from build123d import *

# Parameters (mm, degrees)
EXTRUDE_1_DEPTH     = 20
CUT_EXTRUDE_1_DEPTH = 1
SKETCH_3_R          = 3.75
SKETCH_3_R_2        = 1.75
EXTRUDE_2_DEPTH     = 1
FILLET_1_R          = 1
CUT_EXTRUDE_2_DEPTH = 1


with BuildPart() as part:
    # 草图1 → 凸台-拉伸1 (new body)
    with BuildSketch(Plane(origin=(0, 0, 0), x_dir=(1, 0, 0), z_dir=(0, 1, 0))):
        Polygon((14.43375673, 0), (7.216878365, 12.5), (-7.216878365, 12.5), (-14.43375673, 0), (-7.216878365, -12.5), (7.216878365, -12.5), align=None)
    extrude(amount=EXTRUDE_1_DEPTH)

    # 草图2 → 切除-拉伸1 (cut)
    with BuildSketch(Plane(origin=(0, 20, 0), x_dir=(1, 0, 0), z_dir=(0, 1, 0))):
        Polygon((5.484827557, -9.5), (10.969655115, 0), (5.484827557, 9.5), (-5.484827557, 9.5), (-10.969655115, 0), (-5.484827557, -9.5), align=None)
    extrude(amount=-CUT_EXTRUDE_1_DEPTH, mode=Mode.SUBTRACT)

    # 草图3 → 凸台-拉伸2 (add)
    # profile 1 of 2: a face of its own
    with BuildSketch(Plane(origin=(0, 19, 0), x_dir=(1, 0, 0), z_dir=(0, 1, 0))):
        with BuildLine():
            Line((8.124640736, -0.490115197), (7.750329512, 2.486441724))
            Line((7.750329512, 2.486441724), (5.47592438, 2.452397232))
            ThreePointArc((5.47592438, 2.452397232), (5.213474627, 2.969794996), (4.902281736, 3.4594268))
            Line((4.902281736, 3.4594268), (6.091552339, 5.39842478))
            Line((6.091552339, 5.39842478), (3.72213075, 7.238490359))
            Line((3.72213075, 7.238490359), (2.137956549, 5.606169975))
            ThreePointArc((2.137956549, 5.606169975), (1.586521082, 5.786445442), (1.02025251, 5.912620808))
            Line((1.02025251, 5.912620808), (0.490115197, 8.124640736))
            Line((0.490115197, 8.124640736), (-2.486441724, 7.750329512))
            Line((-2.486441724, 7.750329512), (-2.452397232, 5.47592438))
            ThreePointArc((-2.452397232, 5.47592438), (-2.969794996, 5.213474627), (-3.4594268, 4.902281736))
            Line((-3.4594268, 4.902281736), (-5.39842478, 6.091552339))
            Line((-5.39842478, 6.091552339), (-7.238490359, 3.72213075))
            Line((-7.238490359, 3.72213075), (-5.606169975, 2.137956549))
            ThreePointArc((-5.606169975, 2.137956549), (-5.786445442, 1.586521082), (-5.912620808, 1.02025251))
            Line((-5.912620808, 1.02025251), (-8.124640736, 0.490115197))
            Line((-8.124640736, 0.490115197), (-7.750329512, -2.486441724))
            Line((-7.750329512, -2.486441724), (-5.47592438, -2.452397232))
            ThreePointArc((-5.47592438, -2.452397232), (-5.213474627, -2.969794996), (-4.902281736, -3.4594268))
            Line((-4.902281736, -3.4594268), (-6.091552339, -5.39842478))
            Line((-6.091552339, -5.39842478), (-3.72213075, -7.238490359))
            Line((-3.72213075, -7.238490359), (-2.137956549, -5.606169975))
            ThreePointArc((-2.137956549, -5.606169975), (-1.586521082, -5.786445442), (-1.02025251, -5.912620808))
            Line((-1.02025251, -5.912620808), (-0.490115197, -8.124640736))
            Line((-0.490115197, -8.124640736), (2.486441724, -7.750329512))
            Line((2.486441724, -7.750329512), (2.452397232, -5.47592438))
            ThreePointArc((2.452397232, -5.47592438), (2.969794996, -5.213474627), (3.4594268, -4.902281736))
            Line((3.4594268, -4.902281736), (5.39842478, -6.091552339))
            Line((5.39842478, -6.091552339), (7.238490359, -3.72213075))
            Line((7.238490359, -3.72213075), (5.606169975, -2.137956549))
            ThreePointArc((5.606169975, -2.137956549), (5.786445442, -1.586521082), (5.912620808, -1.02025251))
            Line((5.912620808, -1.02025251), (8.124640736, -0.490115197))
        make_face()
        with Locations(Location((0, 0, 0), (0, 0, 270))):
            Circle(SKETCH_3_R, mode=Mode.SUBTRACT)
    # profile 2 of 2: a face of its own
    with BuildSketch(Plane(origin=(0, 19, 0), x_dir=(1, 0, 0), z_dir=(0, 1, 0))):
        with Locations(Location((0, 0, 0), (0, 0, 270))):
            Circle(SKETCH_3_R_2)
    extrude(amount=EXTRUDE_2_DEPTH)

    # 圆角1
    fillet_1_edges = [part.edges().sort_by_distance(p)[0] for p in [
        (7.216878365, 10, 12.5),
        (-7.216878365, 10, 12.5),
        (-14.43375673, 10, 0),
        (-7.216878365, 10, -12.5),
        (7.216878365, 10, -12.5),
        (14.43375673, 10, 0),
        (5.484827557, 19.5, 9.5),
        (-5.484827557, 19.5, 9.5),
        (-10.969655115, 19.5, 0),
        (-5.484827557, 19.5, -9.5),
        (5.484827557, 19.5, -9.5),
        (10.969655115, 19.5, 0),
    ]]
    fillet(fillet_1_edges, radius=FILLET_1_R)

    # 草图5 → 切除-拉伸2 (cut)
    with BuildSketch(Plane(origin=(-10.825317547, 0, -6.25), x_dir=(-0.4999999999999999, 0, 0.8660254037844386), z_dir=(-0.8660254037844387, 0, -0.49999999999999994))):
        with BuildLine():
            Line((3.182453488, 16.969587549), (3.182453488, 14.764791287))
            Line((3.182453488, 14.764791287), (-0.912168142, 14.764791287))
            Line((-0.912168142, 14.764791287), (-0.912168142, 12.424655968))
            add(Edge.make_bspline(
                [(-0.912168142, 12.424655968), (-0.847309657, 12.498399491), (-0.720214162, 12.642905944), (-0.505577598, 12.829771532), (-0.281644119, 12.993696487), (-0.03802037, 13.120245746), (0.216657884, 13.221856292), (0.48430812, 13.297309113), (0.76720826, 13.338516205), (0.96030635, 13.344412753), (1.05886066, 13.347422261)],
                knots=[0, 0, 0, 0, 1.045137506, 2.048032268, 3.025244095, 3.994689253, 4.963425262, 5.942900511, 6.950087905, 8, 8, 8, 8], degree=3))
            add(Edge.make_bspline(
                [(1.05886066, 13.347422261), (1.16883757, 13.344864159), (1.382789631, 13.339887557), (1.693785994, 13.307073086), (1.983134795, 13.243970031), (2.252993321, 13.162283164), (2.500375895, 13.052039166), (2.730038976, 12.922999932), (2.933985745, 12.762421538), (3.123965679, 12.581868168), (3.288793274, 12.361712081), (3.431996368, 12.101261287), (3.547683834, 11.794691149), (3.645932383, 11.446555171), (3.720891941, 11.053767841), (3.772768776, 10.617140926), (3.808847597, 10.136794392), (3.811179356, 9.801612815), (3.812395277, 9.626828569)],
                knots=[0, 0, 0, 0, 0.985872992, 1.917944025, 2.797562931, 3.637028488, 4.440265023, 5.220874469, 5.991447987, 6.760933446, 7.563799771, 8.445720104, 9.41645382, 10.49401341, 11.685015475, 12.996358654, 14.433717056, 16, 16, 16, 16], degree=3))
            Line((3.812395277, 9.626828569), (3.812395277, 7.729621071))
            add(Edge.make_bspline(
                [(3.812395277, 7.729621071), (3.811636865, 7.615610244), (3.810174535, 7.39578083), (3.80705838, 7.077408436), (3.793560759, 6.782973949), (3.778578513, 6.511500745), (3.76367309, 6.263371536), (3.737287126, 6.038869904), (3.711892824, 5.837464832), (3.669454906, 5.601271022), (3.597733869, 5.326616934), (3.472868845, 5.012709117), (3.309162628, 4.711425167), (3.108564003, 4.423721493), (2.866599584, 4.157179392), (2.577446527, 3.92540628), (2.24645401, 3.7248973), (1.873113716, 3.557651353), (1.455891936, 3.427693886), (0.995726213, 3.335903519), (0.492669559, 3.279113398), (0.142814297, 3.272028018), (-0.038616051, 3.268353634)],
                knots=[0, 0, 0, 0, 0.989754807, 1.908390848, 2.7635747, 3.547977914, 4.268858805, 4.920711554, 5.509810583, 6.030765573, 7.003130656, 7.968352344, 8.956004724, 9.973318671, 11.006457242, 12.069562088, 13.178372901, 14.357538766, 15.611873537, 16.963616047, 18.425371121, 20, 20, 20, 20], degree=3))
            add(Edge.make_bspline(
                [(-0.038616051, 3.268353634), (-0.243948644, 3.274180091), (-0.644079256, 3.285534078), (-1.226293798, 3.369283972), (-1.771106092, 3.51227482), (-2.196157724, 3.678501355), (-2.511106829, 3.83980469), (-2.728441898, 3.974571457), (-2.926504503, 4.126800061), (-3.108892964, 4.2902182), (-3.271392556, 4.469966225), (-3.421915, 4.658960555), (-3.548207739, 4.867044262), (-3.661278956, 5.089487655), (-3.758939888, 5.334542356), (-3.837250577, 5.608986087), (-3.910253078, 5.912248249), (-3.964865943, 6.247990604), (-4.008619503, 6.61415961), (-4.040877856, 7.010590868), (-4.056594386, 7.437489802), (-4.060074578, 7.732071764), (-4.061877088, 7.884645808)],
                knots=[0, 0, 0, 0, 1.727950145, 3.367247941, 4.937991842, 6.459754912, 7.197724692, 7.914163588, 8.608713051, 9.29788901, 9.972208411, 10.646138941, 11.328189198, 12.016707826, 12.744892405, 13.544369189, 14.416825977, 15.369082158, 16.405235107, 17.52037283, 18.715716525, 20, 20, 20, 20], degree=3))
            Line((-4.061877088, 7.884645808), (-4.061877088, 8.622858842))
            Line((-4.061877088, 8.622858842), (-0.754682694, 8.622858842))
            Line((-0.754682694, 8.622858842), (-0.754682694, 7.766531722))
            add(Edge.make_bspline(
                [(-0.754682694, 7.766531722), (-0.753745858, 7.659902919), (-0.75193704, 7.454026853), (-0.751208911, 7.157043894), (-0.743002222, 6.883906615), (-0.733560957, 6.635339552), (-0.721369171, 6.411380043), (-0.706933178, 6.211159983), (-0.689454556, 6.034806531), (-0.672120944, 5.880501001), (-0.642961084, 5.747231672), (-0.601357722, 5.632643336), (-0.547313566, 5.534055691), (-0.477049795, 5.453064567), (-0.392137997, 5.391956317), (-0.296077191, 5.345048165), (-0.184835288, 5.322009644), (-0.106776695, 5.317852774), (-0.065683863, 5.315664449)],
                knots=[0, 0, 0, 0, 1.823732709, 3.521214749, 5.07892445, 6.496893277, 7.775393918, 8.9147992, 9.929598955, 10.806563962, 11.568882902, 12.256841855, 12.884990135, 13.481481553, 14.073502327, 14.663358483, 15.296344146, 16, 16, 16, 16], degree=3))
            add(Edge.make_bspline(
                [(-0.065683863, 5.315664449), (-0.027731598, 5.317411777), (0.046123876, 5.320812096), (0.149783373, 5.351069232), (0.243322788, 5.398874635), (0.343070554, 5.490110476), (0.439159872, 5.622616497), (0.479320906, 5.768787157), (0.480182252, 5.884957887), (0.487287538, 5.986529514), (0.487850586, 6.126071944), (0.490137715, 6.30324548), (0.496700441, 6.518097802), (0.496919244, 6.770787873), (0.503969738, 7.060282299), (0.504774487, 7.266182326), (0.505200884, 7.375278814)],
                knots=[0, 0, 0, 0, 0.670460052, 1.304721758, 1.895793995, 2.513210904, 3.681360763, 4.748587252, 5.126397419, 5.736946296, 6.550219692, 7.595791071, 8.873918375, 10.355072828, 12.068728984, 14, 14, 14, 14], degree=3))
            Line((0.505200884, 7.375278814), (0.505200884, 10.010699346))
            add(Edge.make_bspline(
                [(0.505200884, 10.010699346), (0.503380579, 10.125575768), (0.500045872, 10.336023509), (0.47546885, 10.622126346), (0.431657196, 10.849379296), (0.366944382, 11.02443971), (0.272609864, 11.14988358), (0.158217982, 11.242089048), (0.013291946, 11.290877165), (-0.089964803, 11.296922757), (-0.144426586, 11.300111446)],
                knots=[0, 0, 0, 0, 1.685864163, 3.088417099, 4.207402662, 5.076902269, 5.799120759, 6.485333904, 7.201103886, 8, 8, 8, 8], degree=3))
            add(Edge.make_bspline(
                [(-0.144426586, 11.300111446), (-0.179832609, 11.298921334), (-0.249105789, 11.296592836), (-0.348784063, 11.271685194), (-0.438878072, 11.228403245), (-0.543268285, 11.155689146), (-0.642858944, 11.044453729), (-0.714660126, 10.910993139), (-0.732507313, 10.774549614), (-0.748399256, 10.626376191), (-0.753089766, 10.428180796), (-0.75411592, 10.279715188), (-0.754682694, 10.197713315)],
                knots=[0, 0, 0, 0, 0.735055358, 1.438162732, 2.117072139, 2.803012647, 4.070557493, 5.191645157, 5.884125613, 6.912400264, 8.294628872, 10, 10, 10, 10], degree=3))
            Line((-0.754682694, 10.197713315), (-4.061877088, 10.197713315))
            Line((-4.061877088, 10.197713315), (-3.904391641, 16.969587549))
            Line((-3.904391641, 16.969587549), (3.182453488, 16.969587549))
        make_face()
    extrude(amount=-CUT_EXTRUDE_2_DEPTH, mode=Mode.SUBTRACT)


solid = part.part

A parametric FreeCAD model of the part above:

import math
import FreeCAD as App
import Part
import Sketcher
from FreeCAD import Vector
Q = App.Units.Quantity


def edges_at(feature, points):
    """Names of the edges that pass closest to the given points."""
    edges = feature.Shape.Edges
    near = lambda p: min(range(len(edges)), key=lambda i: edges[i].distToShape(Part.Vertex(*p))[0])
    return sorted({f"Edge{near(p) + 1}" for p in points})


def add_polygon(sketch, points):
    """Adds a closed chain of lines whose ends are joined by coincident constraints."""
    first, n = sketch.GeometryCount, len(points)
    for a, b in zip(points, points[1:] + points[:1]):
        sketch.addGeometry(Part.LineSegment(App.Vector(*a, 0), App.Vector(*b, 0)), False)
    for i in range(n):
        sketch.addConstraint(Sketcher.Constraint("Coincident", first + i, 2, first + (i + 1) % n, 1))

doc = App.newDocument("Part")
body = doc.addObject("PartDesign::Body", "Body")

# Sketch on XZ plane
sketch1 = doc.addObject("Sketcher::SketchObject", "Sketch")
body.addObject(sketch1)
sketch1.AttachmentSupport = (doc.XZ_Plane, [""])
sketch1.MapMode = "FlatFace"
add_polygon(sketch1, [(14, 0), (7, -12), (-7, -12), (-14, 0), (-7, 12), (7, 12)])  # lines 0-5
sketch1.addConstraint([
    Sketcher.Constraint("Horizontal", 1),
    Sketcher.Constraint("Horizontal", 4),
    Sketcher.Constraint("Symmetric", 0, 2, 3, 2, -1, 1),
    Sketcher.Constraint("Symmetric", 2, 2, 5, 2, -1, 1),
    Sketcher.Constraint("PointOnObject", 2, 2, -1),
    Sketcher.Constraint("Parallel", 2, 5),
    Sketcher.Constraint("Vertical", 1, 2, 3, 2),
    Sketcher.Constraint("Angle", 0, Q("-120 deg")),
    Sketcher.Constraint("DistanceY", 1, 2, 3, 2, Q("25 mm")),
    Sketcher.Constraint("DistanceX", 1, 2, 1, 1, Q("14.433757 mm")),
])
pad1 = doc.addObject("PartDesign::Pad", "Pad")
body.addObject(pad1)
pad1.Profile = sketch1
pad1.Length = 20
pad1.Reversed = True

# Sketch on XZ plane
sketch2 = doc.addObject("Sketcher::SketchObject", "Sketch001")
body.addObject(sketch2)
sketch2.AttachmentSupport = (doc.XZ_Plane, [""])
sketch2.MapMode = "FlatFace"
sketch2.AttachmentOffset = App.Placement(Vector(0, 0, -20), App.Rotation())
add_polygon(sketch2, [(5, 10), (11, 0), (5, -10), (-5, -10), (-11, 0), (-5, 10)])  # lines 0-5
sketch2.addConstraint([
    Sketcher.Constraint("Horizontal", 2),
    Sketcher.Constraint("Horizontal", 5),
    Sketcher.Constraint("Symmetric", 0, 2, 3, 2, -1, 1),
    Sketcher.Constraint("Symmetric", 1, 2, 4, 2, -1, 1),
    Sketcher.Constraint("PointOnObject", 0, 2, -1),
    Sketcher.Constraint("Parallel", 0, 3),
    Sketcher.Constraint("Vertical", 2, 2, 4, 2),
    Sketcher.Constraint("Angle", 0, Q("-60 deg")),
    Sketcher.Constraint("DistanceY", 2, 2, 4, 2, Q("19 mm")),
    Sketcher.Constraint("DistanceX", 2, 2, 2, 1, Q("10.969655 mm")),
])
pocket1 = doc.addObject("PartDesign::Pocket", "Pocket")
body.addObject(pocket1)
pocket1.Profile = sketch2
pocket1.Length = 1
pocket1.Reversed = True

# Sketch on XZ plane
sketch3 = doc.addObject("Sketcher::SketchObject", "Sketch002")
body.addObject(sketch3)
sketch3.AttachmentSupport = (doc.XZ_Plane, [""])
sketch3.MapMode = "FlatFace"
sketch3.AttachmentOffset = App.Placement(Vector(0, 0, -19), App.Rotation())
sketch3.addGeometry([
    Part.LineSegment(Vector(8.1, 0.5, 0), Vector(7.8, -2.5, 0)),  # 0
    Part.LineSegment(Vector(7.8, -2.5, 0), Vector(5.5, -2.5, 0)),  # 1
    Part.ArcOfCircle(Part.Circle(Vector(0, 0, 0), Vector(0, 0, 1), 6), math.radians(-35.21), math.radians(-24.13)),  # 2
    Part.LineSegment(Vector(4.9, -3.5, 0), Vector(6.1, -5.4, 0)),  # 3
    Part.LineSegment(Vector(6.1, -5.4, 0), Vector(3.7, -7.2, 0)),  # 4
    Part.LineSegment(Vector(3.7, -7.2, 0), Vector(2.1, -5.6, 0)),  # 5
    Part.ArcOfCircle(Part.Circle(Vector(0, 0, 0), Vector(0, 0, 1), 6), math.radians(-80.21), math.radians(-69.13)),  # 6
    Part.LineSegment(Vector(1, -5.9, 0), Vector(0.5, -8.1, 0)),  # 7
    Part.LineSegment(Vector(0.5, -8.1, 0), Vector(-2.5, -7.8, 0)),  # 8
    Part.LineSegment(Vector(-2.5, -7.8, 0), Vector(-2.5, -5.5, 0)),  # 9
    Part.ArcOfCircle(Part.Circle(Vector(0, 0, 0), Vector(0, 0, 1), 6), math.radians(-125.21), math.radians(-114.13)),  # 10
    Part.LineSegment(Vector(-3.5, -4.9, 0), Vector(-5.4, -6.1, 0)),  # 11
    Part.LineSegment(Vector(-5.4, -6.1, 0), Vector(-7.2, -3.7, 0)),  # 12
    Part.LineSegment(Vector(-7.2, -3.7, 0), Vector(-5.6, -2.1, 0)),  # 13
    Part.ArcOfCircle(Part.Circle(Vector(0, 0, 0), Vector(0, 0, 1), 6), math.radians(-170.21), math.radians(-159.13)),  # 14
    Part.LineSegment(Vector(-5.9, -1, 0), Vector(-8.1, -0.5, 0)),  # 15
    Part.LineSegment(Vector(-8.1, -0.5, 0), Vector(-7.8, 2.5, 0)),  # 16
    Part.LineSegment(Vector(-7.8, 2.5, 0), Vector(-5.5, 2.5, 0)),  # 17
    Part.ArcOfCircle(Part.Circle(Vector(0, 0, 0), Vector(0, 0, 1), 6), math.radians(144.79), math.radians(155.87)),  # 18
    Part.LineSegment(Vector(-4.9, 3.5, 0), Vector(-6.1, 5.4, 0)),  # 19
    Part.LineSegment(Vector(-6.1, 5.4, 0), Vector(-3.7, 7.2, 0)),  # 20
    Part.LineSegment(Vector(-3.7, 7.2, 0), Vector(-2.1, 5.6, 0)),  # 21
    Part.ArcOfCircle(Part.Circle(Vector(0, 0, 0), Vector(0, 0, 1), 6), math.radians(99.79), math.radians(110.87)),  # 22
    Part.LineSegment(Vector(-1, 5.9, 0), Vector(-0.5, 8.1, 0)),  # 23
    Part.LineSegment(Vector(-0.5, 8.1, 0), Vector(2.5, 7.8, 0)),  # 24
    Part.LineSegment(Vector(2.5, 7.8, 0), Vector(2.5, 5.5, 0)),  # 25
    Part.ArcOfCircle(Part.Circle(Vector(0, 0, 0), Vector(0, 0, 1), 6), math.radians(54.79), math.radians(65.87)),  # 26
    Part.LineSegment(Vector(3.5, 4.9, 0), Vector(5.4, 6.1, 0)),  # 27
    Part.LineSegment(Vector(5.4, 6.1, 0), Vector(7.2, 3.7, 0)),  # 28
    Part.LineSegment(Vector(7.2, 3.7, 0), Vector(5.6, 2.1, 0)),  # 29
    Part.ArcOfCircle(Part.Circle(Vector(0, 0, 0), Vector(0, 0, 1), 6), math.radians(9.79), math.radians(20.87)),  # 30
    Part.LineSegment(Vector(5.9, 1, 0), Vector(8.1, 0.5, 0)),  # 31
    Part.Circle(Vector(0, 0, 0), Vector(0, 0, 1), 3.8),  # 32
    Part.Circle(Vector(0, 0, 0), Vector(0, 0, 1), 1.8),  # 33
], False)
sketch3.addConstraint([
    Sketcher.Constraint("Coincident", 0, 2, 1, 1),
    Sketcher.Constraint("Coincident", 1, 2, 2, 2),
    Sketcher.Constraint("Coincident", 2, 1, 3, 1),
    Sketcher.Constraint("Coincident", 3, 2, 4, 1),
    Sketcher.Constraint("Coincident", 4, 2, 5, 1),
    Sketcher.Constraint("Coincident", 5, 2, 6, 2),
    Sketcher.Constraint("Coincident", 6, 1, 7, 1),
    Sketcher.Constraint("Coincident", 7, 2, 8, 1),
    Sketcher.Constraint("Coincident", 8, 2, 9, 1),
    Sketcher.Constraint("Coincident", 9, 2, 10, 2),
    Sketcher.Constraint("Coincident", 10, 1, 11, 1),
    Sketcher.Constraint("Coincident", 11, 2, 12, 1),
    Sketcher.Constraint("Coincident", 12, 2, 13, 1),
    Sketcher.Constraint("Coincident", 13, 2, 14, 2),
    Sketcher.Constraint("Coincident", 14, 1, 15, 1),
    Sketcher.Constraint("Coincident", 15, 2, 16, 1),
    Sketcher.Constraint("Coincident", 16, 2, 17, 1),
    Sketcher.Constraint("Coincident", 17, 2, 18, 2),
    Sketcher.Constraint("Coincident", 18, 1, 19, 1),
    Sketcher.Constraint("Coincident", 19, 2, 20, 1),
    Sketcher.Constraint("Coincident", 20, 2, 21, 1),
    Sketcher.Constraint("Coincident", 21, 2, 22, 2),
    Sketcher.Constraint("Coincident", 22, 1, 23, 1),
    Sketcher.Constraint("Coincident", 23, 2, 24, 1),
    Sketcher.Constraint("Coincident", 24, 2, 25, 1),
    Sketcher.Constraint("Coincident", 25, 2, 26, 2),
    Sketcher.Constraint("Coincident", 26, 1, 27, 1),
    Sketcher.Constraint("Coincident", 27, 2, 28, 1),
    Sketcher.Constraint("Coincident", 28, 2, 29, 1),
    Sketcher.Constraint("Coincident", 29, 2, 30, 2),
    Sketcher.Constraint("Coincident", 30, 1, 31, 1),
    Sketcher.Constraint("Coincident", 31, 2, 0, 1),
    Sketcher.Constraint("Coincident", 2, 3, -1, 1),
    Sketcher.Constraint("Coincident", 6, 3, -1, 1),
    Sketcher.Constraint("Coincident", 10, 3, -1, 1),
    Sketcher.Constraint("Coincident", 14, 3, -1, 1),
    Sketcher.Constraint("Coincident", 18, 3, -1, 1),
    Sketcher.Constraint("Coincident", 22, 3, -1, 1),
    Sketcher.Constraint("Coincident", 26, 3, -1, 1),
    Sketcher.Constraint("Coincident", 30, 3, -1, 1),
    Sketcher.Constraint("Coincident", 32, 3, -1, 1),
    Sketcher.Constraint("Coincident", 33, 3, -1, 1),
    Sketcher.Constraint("Equal", 2, 6),
    Sketcher.Constraint("Equal", 6, 10),
    Sketcher.Constraint("Equal", 10, 14),
    Sketcher.Constraint("Equal", 14, 18),
    Sketcher.Constraint("Equal", 18, 22),
    Sketcher.Constraint("Equal", 22, 26),
    Sketcher.Constraint("Equal", 26, 30),
    Sketcher.Constraint("Symmetric", 0, 2, 16, 2, -1, 1),
    Sketcher.Constraint("Symmetric", 3, 2, 19, 2, -1, 1),
    Sketcher.Constraint("Symmetric", 4, 2, 20, 2, -1, 1),
    Sketcher.Constraint("Symmetric", 7, 2, 23, 2, -1, 1),
    Sketcher.Constraint("Symmetric", 8, 2, 24, 2, -1, 1),
    Sketcher.Constraint("Symmetric", 11, 2, 27, 2, -1, 1),
    Sketcher.Constraint("Symmetric", 12, 2, 28, 2, -1, 1),
    Sketcher.Constraint("Symmetric", 15, 2, 31, 2, -1, 1),
    Sketcher.Constraint("Perpendicular", 0, 8),
    Sketcher.Constraint("Perpendicular", 1, 9),
    Sketcher.Constraint("Perpendicular", 3, 11),
    Sketcher.Constraint("Perpendicular", 4, 12),
    Sketcher.Constraint("Perpendicular", 5, 13),
    Sketcher.Constraint("Perpendicular", 7, 15),
    Sketcher.Constraint("Perpendicular", 9, 17),
    Sketcher.Constraint("Perpendicular", 11, 19),
    Sketcher.Constraint("Perpendicular", 13, 21),
    Sketcher.Constraint("Perpendicular", 15, 23),
    Sketcher.Constraint("Perpendicular", 17, 25),
    Sketcher.Constraint("Perpendicular", 19, 27),
    Sketcher.Constraint("Perpendicular", 21, 29),
    Sketcher.Constraint("Perpendicular", 23, 31),
    Sketcher.Constraint("Equal", 1, 3),
    Sketcher.Constraint("Equal", 0, 4),
    Sketcher.Constraint("Equal", 3, 5),
    Sketcher.Constraint("Equal", 5, 7),
    Sketcher.Constraint("Equal", 4, 8),
    Sketcher.Constraint("Equal", 7, 9),
    Sketcher.Constraint("Equal", 9, 11),
    Sketcher.Constraint("Equal", 8, 12),
    Sketcher.Constraint("Equal", 11, 13),
    Sketcher.Constraint("Equal", 13, 15),
    Sketcher.Constraint("Radius", 2, Q("6 mm")),
    Sketcher.Constraint("Diameter", 32, Q("7.5 mm")),
    Sketcher.Constraint("Diameter", 33, Q("3.5 mm")),
    Sketcher.Constraint("Distance", 0, Q("3 mm")),
    Sketcher.Constraint("DistanceX", 4, 2, 0, 2, Q("4.028199 mm")),
    Sketcher.Constraint("DistanceX", 6, 1, 3, 2, Q("5.0713 mm")),
    Sketcher.Constraint("DistanceX", 8, 2, 5, 2, Q("4.624398 mm")),
    Sketcher.Constraint("Distance", 1, Q("2.27466 mm")),
    Sketcher.Constraint("DistanceX", -1, 1, 0, 2, Q("7.75033 mm")),
    Sketcher.Constraint("DistanceY", 0, 2, -1, 1, Q("2.486442 mm")),
    Sketcher.Constraint("DistanceX", -1, 1, 2, 1, Q("4.902282 mm")),
])
pad2 = doc.addObject("PartDesign::Pad", "Pad001")
body.addObject(pad2)
pad2.Profile = sketch3
pad2.Length = 1
pad2.Reversed = True
doc.recompute()

fillet = doc.addObject("PartDesign::Fillet", "Fillet")
body.addObject(fillet)
fillet.Base = (pad2, edges_at(pad2, [
    (7.217, 10, 12.5),
    (-7.217, 10, 12.5),
    (-14.434, 10, 0),
    (-7.217, 10, -12.5),
    (7.217, 10, -12.5),
    (14.434, 10, 0),
    (5.485, 19.5, 9.5),
    (-5.485, 19.5, 9.5),
    (-10.97, 19.5, 0),
    (-5.485, 19.5, -9.5),
    (5.485, 19.5, -9.5),
    (10.97, 19.5, 0),
]))
fillet.Radius = 1

# Sketch on an angled plane
sketch4 = doc.addObject("Sketcher::SketchObject", "Sketch003")
body.addObject(sketch4)
sketch4.Placement = App.Placement(Vector(-10.825318, 0, -6.25), App.Rotation(Vector(-0.5, 0, 0.866025404), Vector(0, 1, 0), Vector(-0.866025404, 0, -0.5), "ZXY"))
sketch4.addGeometry([
    Part.LineSegment(Vector(3.182453, 14.764791, 0), Vector(3.182453, 16.969588, 0)),  # 0
    Part.LineSegment(Vector(3.182453, 16.969588, 0), Vector(-3.904392, 16.969588, 0)),  # 1
    Part.LineSegment(Vector(-3.904392, 16.969588, 0), Vector(-4.061877, 10.197713, 0)),  # 2
    Part.LineSegment(Vector(-4.061877, 10.197713, 0), Vector(-0.754683, 10.197713, 0)),  # 3
    Part.BSplineCurve([Vector(-0.144427, 11.300111, 0), Vector(-0.179833, 11.298921, 0), Vector(-0.249106, 11.296593, 0), Vector(-0.348784, 11.271685, 0), Vector(-0.438878, 11.228403, 0), Vector(-0.543268, 11.155689, 0), Vector(-0.642859, 11.044454, 0), Vector(-0.71466, 10.910993, 0), Vector(-0.732507, 10.77455, 0), Vector(-0.748399, 10.626376, 0), Vector(-0.75309, 10.428181, 0), Vector(-0.754116, 10.279715, 0), Vector(-0.754683, 10.197713, 0)], [4, 1, 1, 1, 1, 1, 1, 1, 1, 1, 4], [0, 0.735055358, 1.438162732, 2.117072139, 2.803012647, 4.070557493, 5.191645157, 5.884125613, 6.912400264, 8.294628872, 10], False, 3, [1, 1, 1, 1, 1, 1, 1, 1, 1, 1, 1, 1, 1], False),  # 4
    Part.BSplineCurve([Vector(0.505201, 10.010699, 0), Vector(0.503381, 10.125576, 0), Vector(0.500046, 10.336024, 0), Vector(0.475469, 10.622126, 0), Vector(0.431657, 10.849379, 0), Vector(0.366944, 11.02444, 0), Vector(0.27261, 11.149884, 0), Vector(0.158218, 11.242089, 0), Vector(0.013292, 11.290877, 0), Vector(-0.089965, 11.296923, 0), Vector(-0.144427, 11.300111, 0)], [4, 1, 1, 1, 1, 1, 1, 1, 4], [0, 1.685864163, 3.088417099, 4.207402662, 5.076902269, 5.799120759, 6.485333904, 7.201103886, 8], False, 3, [1, 1, 1, 1, 1, 1, 1, 1, 1, 1, 1], False),  # 5
    Part.LineSegment(Vector(0.505201, 10.010699, 0), Vector(0.505201, 7.375279, 0)),  # 6
    Part.BSplineCurve([Vector(-0.065684, 5.315664, 0), Vector(-0.027732, 5.317412, 0), Vector(0.046124, 5.320812, 0), Vector(0.149783, 5.351069, 0), Vector(0.243323, 5.398875, 0), Vector(0.343071, 5.49011, 0), Vector(0.43916, 5.622617, 0), Vector(0.479321, 5.768787, 0), Vector(0.480182, 5.884958, 0), Vector(0.487288, 5.98653, 0), Vector(0.487851, 6.126072, 0), Vector(0.490138, 6.303245, 0), Vector(0.4967, 6.518098, 0), Vector(0.496919, 6.770788, 0), Vector(0.50397, 7.060282, 0), Vector(0.504774, 7.266182, 0), Vector(0.505201, 7.375279, 0)], [4, 1, 1, 1, 1, 1, 1, 1, 1, 1, 1, 1, 1, 1, 4], [0, 0.670460052, 1.304721758, 1.895793995, 2.513210904, 3.681360763, 4.748587252, 5.126397419, 5.736946296, 6.550219692, 7.595791071, 8.873918375, 10.355072828, 12.068728984, 14], False, 3, [1, 1, 1, 1, 1, 1, 1, 1, 1, 1, 1, 1, 1, 1, 1, 1, 1], False),  # 7
    Part.BSplineCurve([Vector(-0.754683, 7.766532, 0), Vector(-0.753746, 7.659903, 0), Vector(-0.751937, 7.454027, 0), Vector(-0.751209, 7.157044, 0), Vector(-0.743002, 6.883907, 0), Vector(-0.733561, 6.63534, 0), Vector(-0.721369, 6.41138, 0), Vector(-0.706933, 6.21116, 0), Vector(-0.689455, 6.034807, 0), Vector(-0.672121, 5.880501, 0), Vector(-0.642961, 5.747232, 0), Vector(-0.601358, 5.632643, 0), Vector(-0.547314, 5.534056, 0), Vector(-0.47705, 5.453065, 0), Vector(-0.392138, 5.391956, 0), Vector(-0.296077, 5.345048, 0), Vector(-0.184835, 5.32201, 0), Vector(-0.106777, 5.317853, 0), Vector(-0.065684, 5.315664, 0)], [4, 1, 1, 1, 1, 1, 1, 1, 1, 1, 1, 1, 1, 1, 1, 1, 4], [0, 1.823732709, 3.521214749, 5.07892445, 6.496893277, 7.775393918, 8.9147992, 9.929598955, 10.806563962, 11.568882902, 12.256841855, 12.884990135, 13.481481553, 14.073502327, 14.663358483, 15.296344146, 16], False, 3, [1, 1, 1, 1, 1, 1, 1, 1, 1, 1, 1, 1, 1, 1, 1, 1, 1, 1, 1], False),  # 8
    Part.LineSegment(Vector(-0.754683, 7.766532, 0), Vector(-0.754683, 8.622859, 0)),  # 9
    Part.LineSegment(Vector(-0.754683, 8.622859, 0), Vector(-4.061877, 8.622859, 0)),  # 10
    Part.LineSegment(Vector(-4.061877, 8.622859, 0), Vector(-4.061877, 7.884646, 0)),  # 11
    Part.BSplineCurve([Vector(-0.038616, 3.268354, 0), Vector(-0.243949, 3.27418, 0), Vector(-0.644079, 3.285534, 0), Vector(-1.226294, 3.369284, 0), Vector(-1.771106, 3.512275, 0), Vector(-2.196158, 3.678501, 0), Vector(-2.511107, 3.839805, 0), Vector(-2.728442, 3.974571, 0), Vector(-2.926505, 4.1268, 0), Vector(-3.108893, 4.290218, 0), Vector(-3.271393, 4.469966, 0), Vector(-3.421915, 4.658961, 0), Vector(-3.548208, 4.867044, 0), Vector(-3.661279, 5.089488, 0), Vector(-3.75894, 5.334542, 0), Vector(-3.837251, 5.608986, 0), Vector(-3.910253, 5.912248, 0), Vector(-3.964866, 6.247991, 0), Vector(-4.00862, 6.61416, 0), Vector(-4.040878, 7.010591, 0), Vector(-4.056594, 7.43749, 0), Vector(-4.060075, 7.732072, 0), Vector(-4.061877, 7.884646, 0)], [4, 1, 1, 1, 1, 1, 1, 1, 1, 1, 1, 1, 1, 1, 1, 1, 1, 1, 1, 1, 4], [0, 1.727950145, 3.367247941, 4.937991842, 6.459754912, 7.197724692, 7.914163588, 8.608713051, 9.29788901, 9.972208411, 10.646138941, 11.328189198, 12.016707826, 12.744892405, 13.544369189, 14.416825977, 15.369082158, 16.405235107, 17.52037283, 18.715716525, 20], False, 3, [1, 1, 1, 1, 1, 1, 1, 1, 1, 1, 1, 1, 1, 1, 1, 1, 1, 1, 1, 1, 1, 1, 1], False),  # 12
    Part.BSplineCurve([Vector(3.812395, 7.729621, 0), Vector(3.811637, 7.61561, 0), Vector(3.810175, 7.395781, 0), Vector(3.807058, 7.077408, 0), Vector(3.793561, 6.782974, 0), Vector(3.778579, 6.511501, 0), Vector(3.763673, 6.263372, 0), Vector(3.737287, 6.03887, 0), Vector(3.711893, 5.837465, 0), Vector(3.669455, 5.601271, 0), Vector(3.597734, 5.326617, 0), Vector(3.472869, 5.012709, 0), Vector(3.309163, 4.711425, 0), Vector(3.108564, 4.423721, 0), Vector(2.8666, 4.157179, 0), Vector(2.577447, 3.925406, 0), Vector(2.246454, 3.724897, 0), Vector(1.873114, 3.557651, 0), Vector(1.455892, 3.427694, 0), Vector(0.995726, 3.335904, 0), Vector(0.49267, 3.279113, 0), Vector(0.142814, 3.272028, 0), Vector(-0.038616, 3.268354, 0)], [4, 1, 1, 1, 1, 1, 1, 1, 1, 1, 1, 1, 1, 1, 1, 1, 1, 1, 1, 1, 4], [0, 0.989754807, 1.908390848, 2.7635747, 3.547977914, 4.268858805, 4.920711554, 5.509810583, 6.030765573, 7.003130656, 7.968352344, 8.956004724, 9.973318671, 11.006457242, 12.069562088, 13.178372901, 14.357538766, 15.611873537, 16.963616047, 18.425371121, 20], False, 3, [1, 1, 1, 1, 1, 1, 1, 1, 1, 1, 1, 1, 1, 1, 1, 1, 1, 1, 1, 1, 1, 1, 1], False),  # 13
    Part.LineSegment(Vector(3.812395, 7.729621, 0), Vector(3.812395, 9.626829, 0)),  # 14
    Part.BSplineCurve([Vector(1.058861, 13.347422, 0), Vector(1.168838, 13.344864, 0), Vector(1.38279, 13.339888, 0), Vector(1.693786, 13.307073, 0), Vector(1.983135, 13.24397, 0), Vector(2.252993, 13.162283, 0), Vector(2.500376, 13.052039, 0), Vector(2.730039, 12.923, 0), Vector(2.933986, 12.762422, 0), Vector(3.123966, 12.581868, 0), Vector(3.288793, 12.361712, 0), Vector(3.431996, 12.101261, 0), Vector(3.547684, 11.794691, 0), Vector(3.645932, 11.446555, 0), Vector(3.720892, 11.053768, 0), Vector(3.772769, 10.617141, 0), Vector(3.808848, 10.136794, 0), Vector(3.811179, 9.801613, 0), Vector(3.812395, 9.626829, 0)], [4, 1, 1, 1, 1, 1, 1, 1, 1, 1, 1, 1, 1, 1, 1, 1, 4], [0, 0.985872992, 1.917944025, 2.797562931, 3.637028488, 4.440265023, 5.220874469, 5.991447987, 6.760933446, 7.563799771, 8.445720104, 9.41645382, 10.49401341, 11.685015475, 12.996358654, 14.433717056, 16], False, 3, [1, 1, 1, 1, 1, 1, 1, 1, 1, 1, 1, 1, 1, 1, 1, 1, 1, 1, 1], False),  # 15
    Part.BSplineCurve([Vector(-0.912168, 12.424656, 0), Vector(-0.84731, 12.498399, 0), Vector(-0.720214, 12.642906, 0), Vector(-0.505578, 12.829772, 0), Vector(-0.281644, 12.993696, 0), Vector(-0.03802, 13.120246, 0), Vector(0.216658, 13.221856, 0), Vector(0.484308, 13.297309, 0), Vector(0.767208, 13.338516, 0), Vector(0.960306, 13.344413, 0), Vector(1.058861, 13.347422, 0)], [4, 1, 1, 1, 1, 1, 1, 1, 4], [0, 1.045137506, 2.048032268, 3.025244095, 3.994689253, 4.963425262, 5.942900511, 6.950087905, 8], False, 3, [1, 1, 1, 1, 1, 1, 1, 1, 1, 1, 1], False),  # 16
    Part.LineSegment(Vector(-0.912168, 12.424656, 0), Vector(-0.912168, 14.764791, 0)),  # 17
    Part.LineSegment(Vector(-0.912168, 14.764791, 0), Vector(3.182453, 14.764791, 0)),  # 18
], False)
sketch4.addConstraint([
    Sketcher.Constraint("Block", 4),
    Sketcher.Constraint("Block", 5),
    Sketcher.Constraint("Block", 7),
    Sketcher.Constraint("Block", 8),
    Sketcher.Constraint("Block", 12),
    Sketcher.Constraint("Block", 13),
    Sketcher.Constraint("Block", 15),
    Sketcher.Constraint("Block", 16),
    Sketcher.Constraint("Coincident", 0, 2, 1, 1),
    Sketcher.Constraint("Coincident", 1, 2, 2, 1),
    Sketcher.Constraint("Coincident", 2, 2, 3, 1),
    Sketcher.Constraint("Coincident", 3, 2, 4, 2),
    Sketcher.Constraint("Coincident", 5, 1, 6, 1),
    Sketcher.Constraint("Coincident", 6, 2, 7, 2),
    Sketcher.Constraint("Coincident", 8, 1, 9, 1),
    Sketcher.Constraint("Coincident", 9, 2, 10, 1),
    Sketcher.Constraint("Coincident", 10, 2, 11, 1),
    Sketcher.Constraint("Coincident", 11, 2, 12, 2),
    Sketcher.Constraint("Coincident", 13, 1, 14, 1),
    Sketcher.Constraint("Coincident", 14, 2, 15, 2),
    Sketcher.Constraint("Coincident", 16, 1, 17, 1),
    Sketcher.Constraint("Coincident", 17, 2, 18, 1),
    Sketcher.Constraint("Coincident", 18, 2, 0, 1),
    Sketcher.Constraint("Vertical", 0),
    Sketcher.Constraint("Horizontal", 1),
    Sketcher.Constraint("Horizontal", 3),
    Sketcher.Constraint("Vertical", 9),
    Sketcher.Constraint("Horizontal", 10),
    Sketcher.Constraint("Vertical", 11),
    Sketcher.Constraint("Vertical", 17),
    Sketcher.Constraint("Horizontal", 18),
    Sketcher.Constraint("Vertical", 2, 2, 10, 2),
    Sketcher.Constraint("DistanceX", 18, 1, 18, 2, Q("4.094622 mm")),
    Sketcher.Constraint("DistanceX", 1, 2, 1, 1, Q("7.086845 mm")),
    Sketcher.Constraint("DistanceY", 0, 1, 0, 2, Q("2.204796 mm")),
    Sketcher.Constraint("DistanceY", 9, 1, 9, 2, Q("0.856327 mm")),
    Sketcher.Constraint("DistanceY", 17, 1, 17, 2, Q("2.340135 mm")),
])
pocket2 = doc.addObject("PartDesign::Pocket", "Pocket001")
body.addObject(pocket2)
pocket2.Profile = sketch4
pocket2.Length = 1

doc.recompute()
